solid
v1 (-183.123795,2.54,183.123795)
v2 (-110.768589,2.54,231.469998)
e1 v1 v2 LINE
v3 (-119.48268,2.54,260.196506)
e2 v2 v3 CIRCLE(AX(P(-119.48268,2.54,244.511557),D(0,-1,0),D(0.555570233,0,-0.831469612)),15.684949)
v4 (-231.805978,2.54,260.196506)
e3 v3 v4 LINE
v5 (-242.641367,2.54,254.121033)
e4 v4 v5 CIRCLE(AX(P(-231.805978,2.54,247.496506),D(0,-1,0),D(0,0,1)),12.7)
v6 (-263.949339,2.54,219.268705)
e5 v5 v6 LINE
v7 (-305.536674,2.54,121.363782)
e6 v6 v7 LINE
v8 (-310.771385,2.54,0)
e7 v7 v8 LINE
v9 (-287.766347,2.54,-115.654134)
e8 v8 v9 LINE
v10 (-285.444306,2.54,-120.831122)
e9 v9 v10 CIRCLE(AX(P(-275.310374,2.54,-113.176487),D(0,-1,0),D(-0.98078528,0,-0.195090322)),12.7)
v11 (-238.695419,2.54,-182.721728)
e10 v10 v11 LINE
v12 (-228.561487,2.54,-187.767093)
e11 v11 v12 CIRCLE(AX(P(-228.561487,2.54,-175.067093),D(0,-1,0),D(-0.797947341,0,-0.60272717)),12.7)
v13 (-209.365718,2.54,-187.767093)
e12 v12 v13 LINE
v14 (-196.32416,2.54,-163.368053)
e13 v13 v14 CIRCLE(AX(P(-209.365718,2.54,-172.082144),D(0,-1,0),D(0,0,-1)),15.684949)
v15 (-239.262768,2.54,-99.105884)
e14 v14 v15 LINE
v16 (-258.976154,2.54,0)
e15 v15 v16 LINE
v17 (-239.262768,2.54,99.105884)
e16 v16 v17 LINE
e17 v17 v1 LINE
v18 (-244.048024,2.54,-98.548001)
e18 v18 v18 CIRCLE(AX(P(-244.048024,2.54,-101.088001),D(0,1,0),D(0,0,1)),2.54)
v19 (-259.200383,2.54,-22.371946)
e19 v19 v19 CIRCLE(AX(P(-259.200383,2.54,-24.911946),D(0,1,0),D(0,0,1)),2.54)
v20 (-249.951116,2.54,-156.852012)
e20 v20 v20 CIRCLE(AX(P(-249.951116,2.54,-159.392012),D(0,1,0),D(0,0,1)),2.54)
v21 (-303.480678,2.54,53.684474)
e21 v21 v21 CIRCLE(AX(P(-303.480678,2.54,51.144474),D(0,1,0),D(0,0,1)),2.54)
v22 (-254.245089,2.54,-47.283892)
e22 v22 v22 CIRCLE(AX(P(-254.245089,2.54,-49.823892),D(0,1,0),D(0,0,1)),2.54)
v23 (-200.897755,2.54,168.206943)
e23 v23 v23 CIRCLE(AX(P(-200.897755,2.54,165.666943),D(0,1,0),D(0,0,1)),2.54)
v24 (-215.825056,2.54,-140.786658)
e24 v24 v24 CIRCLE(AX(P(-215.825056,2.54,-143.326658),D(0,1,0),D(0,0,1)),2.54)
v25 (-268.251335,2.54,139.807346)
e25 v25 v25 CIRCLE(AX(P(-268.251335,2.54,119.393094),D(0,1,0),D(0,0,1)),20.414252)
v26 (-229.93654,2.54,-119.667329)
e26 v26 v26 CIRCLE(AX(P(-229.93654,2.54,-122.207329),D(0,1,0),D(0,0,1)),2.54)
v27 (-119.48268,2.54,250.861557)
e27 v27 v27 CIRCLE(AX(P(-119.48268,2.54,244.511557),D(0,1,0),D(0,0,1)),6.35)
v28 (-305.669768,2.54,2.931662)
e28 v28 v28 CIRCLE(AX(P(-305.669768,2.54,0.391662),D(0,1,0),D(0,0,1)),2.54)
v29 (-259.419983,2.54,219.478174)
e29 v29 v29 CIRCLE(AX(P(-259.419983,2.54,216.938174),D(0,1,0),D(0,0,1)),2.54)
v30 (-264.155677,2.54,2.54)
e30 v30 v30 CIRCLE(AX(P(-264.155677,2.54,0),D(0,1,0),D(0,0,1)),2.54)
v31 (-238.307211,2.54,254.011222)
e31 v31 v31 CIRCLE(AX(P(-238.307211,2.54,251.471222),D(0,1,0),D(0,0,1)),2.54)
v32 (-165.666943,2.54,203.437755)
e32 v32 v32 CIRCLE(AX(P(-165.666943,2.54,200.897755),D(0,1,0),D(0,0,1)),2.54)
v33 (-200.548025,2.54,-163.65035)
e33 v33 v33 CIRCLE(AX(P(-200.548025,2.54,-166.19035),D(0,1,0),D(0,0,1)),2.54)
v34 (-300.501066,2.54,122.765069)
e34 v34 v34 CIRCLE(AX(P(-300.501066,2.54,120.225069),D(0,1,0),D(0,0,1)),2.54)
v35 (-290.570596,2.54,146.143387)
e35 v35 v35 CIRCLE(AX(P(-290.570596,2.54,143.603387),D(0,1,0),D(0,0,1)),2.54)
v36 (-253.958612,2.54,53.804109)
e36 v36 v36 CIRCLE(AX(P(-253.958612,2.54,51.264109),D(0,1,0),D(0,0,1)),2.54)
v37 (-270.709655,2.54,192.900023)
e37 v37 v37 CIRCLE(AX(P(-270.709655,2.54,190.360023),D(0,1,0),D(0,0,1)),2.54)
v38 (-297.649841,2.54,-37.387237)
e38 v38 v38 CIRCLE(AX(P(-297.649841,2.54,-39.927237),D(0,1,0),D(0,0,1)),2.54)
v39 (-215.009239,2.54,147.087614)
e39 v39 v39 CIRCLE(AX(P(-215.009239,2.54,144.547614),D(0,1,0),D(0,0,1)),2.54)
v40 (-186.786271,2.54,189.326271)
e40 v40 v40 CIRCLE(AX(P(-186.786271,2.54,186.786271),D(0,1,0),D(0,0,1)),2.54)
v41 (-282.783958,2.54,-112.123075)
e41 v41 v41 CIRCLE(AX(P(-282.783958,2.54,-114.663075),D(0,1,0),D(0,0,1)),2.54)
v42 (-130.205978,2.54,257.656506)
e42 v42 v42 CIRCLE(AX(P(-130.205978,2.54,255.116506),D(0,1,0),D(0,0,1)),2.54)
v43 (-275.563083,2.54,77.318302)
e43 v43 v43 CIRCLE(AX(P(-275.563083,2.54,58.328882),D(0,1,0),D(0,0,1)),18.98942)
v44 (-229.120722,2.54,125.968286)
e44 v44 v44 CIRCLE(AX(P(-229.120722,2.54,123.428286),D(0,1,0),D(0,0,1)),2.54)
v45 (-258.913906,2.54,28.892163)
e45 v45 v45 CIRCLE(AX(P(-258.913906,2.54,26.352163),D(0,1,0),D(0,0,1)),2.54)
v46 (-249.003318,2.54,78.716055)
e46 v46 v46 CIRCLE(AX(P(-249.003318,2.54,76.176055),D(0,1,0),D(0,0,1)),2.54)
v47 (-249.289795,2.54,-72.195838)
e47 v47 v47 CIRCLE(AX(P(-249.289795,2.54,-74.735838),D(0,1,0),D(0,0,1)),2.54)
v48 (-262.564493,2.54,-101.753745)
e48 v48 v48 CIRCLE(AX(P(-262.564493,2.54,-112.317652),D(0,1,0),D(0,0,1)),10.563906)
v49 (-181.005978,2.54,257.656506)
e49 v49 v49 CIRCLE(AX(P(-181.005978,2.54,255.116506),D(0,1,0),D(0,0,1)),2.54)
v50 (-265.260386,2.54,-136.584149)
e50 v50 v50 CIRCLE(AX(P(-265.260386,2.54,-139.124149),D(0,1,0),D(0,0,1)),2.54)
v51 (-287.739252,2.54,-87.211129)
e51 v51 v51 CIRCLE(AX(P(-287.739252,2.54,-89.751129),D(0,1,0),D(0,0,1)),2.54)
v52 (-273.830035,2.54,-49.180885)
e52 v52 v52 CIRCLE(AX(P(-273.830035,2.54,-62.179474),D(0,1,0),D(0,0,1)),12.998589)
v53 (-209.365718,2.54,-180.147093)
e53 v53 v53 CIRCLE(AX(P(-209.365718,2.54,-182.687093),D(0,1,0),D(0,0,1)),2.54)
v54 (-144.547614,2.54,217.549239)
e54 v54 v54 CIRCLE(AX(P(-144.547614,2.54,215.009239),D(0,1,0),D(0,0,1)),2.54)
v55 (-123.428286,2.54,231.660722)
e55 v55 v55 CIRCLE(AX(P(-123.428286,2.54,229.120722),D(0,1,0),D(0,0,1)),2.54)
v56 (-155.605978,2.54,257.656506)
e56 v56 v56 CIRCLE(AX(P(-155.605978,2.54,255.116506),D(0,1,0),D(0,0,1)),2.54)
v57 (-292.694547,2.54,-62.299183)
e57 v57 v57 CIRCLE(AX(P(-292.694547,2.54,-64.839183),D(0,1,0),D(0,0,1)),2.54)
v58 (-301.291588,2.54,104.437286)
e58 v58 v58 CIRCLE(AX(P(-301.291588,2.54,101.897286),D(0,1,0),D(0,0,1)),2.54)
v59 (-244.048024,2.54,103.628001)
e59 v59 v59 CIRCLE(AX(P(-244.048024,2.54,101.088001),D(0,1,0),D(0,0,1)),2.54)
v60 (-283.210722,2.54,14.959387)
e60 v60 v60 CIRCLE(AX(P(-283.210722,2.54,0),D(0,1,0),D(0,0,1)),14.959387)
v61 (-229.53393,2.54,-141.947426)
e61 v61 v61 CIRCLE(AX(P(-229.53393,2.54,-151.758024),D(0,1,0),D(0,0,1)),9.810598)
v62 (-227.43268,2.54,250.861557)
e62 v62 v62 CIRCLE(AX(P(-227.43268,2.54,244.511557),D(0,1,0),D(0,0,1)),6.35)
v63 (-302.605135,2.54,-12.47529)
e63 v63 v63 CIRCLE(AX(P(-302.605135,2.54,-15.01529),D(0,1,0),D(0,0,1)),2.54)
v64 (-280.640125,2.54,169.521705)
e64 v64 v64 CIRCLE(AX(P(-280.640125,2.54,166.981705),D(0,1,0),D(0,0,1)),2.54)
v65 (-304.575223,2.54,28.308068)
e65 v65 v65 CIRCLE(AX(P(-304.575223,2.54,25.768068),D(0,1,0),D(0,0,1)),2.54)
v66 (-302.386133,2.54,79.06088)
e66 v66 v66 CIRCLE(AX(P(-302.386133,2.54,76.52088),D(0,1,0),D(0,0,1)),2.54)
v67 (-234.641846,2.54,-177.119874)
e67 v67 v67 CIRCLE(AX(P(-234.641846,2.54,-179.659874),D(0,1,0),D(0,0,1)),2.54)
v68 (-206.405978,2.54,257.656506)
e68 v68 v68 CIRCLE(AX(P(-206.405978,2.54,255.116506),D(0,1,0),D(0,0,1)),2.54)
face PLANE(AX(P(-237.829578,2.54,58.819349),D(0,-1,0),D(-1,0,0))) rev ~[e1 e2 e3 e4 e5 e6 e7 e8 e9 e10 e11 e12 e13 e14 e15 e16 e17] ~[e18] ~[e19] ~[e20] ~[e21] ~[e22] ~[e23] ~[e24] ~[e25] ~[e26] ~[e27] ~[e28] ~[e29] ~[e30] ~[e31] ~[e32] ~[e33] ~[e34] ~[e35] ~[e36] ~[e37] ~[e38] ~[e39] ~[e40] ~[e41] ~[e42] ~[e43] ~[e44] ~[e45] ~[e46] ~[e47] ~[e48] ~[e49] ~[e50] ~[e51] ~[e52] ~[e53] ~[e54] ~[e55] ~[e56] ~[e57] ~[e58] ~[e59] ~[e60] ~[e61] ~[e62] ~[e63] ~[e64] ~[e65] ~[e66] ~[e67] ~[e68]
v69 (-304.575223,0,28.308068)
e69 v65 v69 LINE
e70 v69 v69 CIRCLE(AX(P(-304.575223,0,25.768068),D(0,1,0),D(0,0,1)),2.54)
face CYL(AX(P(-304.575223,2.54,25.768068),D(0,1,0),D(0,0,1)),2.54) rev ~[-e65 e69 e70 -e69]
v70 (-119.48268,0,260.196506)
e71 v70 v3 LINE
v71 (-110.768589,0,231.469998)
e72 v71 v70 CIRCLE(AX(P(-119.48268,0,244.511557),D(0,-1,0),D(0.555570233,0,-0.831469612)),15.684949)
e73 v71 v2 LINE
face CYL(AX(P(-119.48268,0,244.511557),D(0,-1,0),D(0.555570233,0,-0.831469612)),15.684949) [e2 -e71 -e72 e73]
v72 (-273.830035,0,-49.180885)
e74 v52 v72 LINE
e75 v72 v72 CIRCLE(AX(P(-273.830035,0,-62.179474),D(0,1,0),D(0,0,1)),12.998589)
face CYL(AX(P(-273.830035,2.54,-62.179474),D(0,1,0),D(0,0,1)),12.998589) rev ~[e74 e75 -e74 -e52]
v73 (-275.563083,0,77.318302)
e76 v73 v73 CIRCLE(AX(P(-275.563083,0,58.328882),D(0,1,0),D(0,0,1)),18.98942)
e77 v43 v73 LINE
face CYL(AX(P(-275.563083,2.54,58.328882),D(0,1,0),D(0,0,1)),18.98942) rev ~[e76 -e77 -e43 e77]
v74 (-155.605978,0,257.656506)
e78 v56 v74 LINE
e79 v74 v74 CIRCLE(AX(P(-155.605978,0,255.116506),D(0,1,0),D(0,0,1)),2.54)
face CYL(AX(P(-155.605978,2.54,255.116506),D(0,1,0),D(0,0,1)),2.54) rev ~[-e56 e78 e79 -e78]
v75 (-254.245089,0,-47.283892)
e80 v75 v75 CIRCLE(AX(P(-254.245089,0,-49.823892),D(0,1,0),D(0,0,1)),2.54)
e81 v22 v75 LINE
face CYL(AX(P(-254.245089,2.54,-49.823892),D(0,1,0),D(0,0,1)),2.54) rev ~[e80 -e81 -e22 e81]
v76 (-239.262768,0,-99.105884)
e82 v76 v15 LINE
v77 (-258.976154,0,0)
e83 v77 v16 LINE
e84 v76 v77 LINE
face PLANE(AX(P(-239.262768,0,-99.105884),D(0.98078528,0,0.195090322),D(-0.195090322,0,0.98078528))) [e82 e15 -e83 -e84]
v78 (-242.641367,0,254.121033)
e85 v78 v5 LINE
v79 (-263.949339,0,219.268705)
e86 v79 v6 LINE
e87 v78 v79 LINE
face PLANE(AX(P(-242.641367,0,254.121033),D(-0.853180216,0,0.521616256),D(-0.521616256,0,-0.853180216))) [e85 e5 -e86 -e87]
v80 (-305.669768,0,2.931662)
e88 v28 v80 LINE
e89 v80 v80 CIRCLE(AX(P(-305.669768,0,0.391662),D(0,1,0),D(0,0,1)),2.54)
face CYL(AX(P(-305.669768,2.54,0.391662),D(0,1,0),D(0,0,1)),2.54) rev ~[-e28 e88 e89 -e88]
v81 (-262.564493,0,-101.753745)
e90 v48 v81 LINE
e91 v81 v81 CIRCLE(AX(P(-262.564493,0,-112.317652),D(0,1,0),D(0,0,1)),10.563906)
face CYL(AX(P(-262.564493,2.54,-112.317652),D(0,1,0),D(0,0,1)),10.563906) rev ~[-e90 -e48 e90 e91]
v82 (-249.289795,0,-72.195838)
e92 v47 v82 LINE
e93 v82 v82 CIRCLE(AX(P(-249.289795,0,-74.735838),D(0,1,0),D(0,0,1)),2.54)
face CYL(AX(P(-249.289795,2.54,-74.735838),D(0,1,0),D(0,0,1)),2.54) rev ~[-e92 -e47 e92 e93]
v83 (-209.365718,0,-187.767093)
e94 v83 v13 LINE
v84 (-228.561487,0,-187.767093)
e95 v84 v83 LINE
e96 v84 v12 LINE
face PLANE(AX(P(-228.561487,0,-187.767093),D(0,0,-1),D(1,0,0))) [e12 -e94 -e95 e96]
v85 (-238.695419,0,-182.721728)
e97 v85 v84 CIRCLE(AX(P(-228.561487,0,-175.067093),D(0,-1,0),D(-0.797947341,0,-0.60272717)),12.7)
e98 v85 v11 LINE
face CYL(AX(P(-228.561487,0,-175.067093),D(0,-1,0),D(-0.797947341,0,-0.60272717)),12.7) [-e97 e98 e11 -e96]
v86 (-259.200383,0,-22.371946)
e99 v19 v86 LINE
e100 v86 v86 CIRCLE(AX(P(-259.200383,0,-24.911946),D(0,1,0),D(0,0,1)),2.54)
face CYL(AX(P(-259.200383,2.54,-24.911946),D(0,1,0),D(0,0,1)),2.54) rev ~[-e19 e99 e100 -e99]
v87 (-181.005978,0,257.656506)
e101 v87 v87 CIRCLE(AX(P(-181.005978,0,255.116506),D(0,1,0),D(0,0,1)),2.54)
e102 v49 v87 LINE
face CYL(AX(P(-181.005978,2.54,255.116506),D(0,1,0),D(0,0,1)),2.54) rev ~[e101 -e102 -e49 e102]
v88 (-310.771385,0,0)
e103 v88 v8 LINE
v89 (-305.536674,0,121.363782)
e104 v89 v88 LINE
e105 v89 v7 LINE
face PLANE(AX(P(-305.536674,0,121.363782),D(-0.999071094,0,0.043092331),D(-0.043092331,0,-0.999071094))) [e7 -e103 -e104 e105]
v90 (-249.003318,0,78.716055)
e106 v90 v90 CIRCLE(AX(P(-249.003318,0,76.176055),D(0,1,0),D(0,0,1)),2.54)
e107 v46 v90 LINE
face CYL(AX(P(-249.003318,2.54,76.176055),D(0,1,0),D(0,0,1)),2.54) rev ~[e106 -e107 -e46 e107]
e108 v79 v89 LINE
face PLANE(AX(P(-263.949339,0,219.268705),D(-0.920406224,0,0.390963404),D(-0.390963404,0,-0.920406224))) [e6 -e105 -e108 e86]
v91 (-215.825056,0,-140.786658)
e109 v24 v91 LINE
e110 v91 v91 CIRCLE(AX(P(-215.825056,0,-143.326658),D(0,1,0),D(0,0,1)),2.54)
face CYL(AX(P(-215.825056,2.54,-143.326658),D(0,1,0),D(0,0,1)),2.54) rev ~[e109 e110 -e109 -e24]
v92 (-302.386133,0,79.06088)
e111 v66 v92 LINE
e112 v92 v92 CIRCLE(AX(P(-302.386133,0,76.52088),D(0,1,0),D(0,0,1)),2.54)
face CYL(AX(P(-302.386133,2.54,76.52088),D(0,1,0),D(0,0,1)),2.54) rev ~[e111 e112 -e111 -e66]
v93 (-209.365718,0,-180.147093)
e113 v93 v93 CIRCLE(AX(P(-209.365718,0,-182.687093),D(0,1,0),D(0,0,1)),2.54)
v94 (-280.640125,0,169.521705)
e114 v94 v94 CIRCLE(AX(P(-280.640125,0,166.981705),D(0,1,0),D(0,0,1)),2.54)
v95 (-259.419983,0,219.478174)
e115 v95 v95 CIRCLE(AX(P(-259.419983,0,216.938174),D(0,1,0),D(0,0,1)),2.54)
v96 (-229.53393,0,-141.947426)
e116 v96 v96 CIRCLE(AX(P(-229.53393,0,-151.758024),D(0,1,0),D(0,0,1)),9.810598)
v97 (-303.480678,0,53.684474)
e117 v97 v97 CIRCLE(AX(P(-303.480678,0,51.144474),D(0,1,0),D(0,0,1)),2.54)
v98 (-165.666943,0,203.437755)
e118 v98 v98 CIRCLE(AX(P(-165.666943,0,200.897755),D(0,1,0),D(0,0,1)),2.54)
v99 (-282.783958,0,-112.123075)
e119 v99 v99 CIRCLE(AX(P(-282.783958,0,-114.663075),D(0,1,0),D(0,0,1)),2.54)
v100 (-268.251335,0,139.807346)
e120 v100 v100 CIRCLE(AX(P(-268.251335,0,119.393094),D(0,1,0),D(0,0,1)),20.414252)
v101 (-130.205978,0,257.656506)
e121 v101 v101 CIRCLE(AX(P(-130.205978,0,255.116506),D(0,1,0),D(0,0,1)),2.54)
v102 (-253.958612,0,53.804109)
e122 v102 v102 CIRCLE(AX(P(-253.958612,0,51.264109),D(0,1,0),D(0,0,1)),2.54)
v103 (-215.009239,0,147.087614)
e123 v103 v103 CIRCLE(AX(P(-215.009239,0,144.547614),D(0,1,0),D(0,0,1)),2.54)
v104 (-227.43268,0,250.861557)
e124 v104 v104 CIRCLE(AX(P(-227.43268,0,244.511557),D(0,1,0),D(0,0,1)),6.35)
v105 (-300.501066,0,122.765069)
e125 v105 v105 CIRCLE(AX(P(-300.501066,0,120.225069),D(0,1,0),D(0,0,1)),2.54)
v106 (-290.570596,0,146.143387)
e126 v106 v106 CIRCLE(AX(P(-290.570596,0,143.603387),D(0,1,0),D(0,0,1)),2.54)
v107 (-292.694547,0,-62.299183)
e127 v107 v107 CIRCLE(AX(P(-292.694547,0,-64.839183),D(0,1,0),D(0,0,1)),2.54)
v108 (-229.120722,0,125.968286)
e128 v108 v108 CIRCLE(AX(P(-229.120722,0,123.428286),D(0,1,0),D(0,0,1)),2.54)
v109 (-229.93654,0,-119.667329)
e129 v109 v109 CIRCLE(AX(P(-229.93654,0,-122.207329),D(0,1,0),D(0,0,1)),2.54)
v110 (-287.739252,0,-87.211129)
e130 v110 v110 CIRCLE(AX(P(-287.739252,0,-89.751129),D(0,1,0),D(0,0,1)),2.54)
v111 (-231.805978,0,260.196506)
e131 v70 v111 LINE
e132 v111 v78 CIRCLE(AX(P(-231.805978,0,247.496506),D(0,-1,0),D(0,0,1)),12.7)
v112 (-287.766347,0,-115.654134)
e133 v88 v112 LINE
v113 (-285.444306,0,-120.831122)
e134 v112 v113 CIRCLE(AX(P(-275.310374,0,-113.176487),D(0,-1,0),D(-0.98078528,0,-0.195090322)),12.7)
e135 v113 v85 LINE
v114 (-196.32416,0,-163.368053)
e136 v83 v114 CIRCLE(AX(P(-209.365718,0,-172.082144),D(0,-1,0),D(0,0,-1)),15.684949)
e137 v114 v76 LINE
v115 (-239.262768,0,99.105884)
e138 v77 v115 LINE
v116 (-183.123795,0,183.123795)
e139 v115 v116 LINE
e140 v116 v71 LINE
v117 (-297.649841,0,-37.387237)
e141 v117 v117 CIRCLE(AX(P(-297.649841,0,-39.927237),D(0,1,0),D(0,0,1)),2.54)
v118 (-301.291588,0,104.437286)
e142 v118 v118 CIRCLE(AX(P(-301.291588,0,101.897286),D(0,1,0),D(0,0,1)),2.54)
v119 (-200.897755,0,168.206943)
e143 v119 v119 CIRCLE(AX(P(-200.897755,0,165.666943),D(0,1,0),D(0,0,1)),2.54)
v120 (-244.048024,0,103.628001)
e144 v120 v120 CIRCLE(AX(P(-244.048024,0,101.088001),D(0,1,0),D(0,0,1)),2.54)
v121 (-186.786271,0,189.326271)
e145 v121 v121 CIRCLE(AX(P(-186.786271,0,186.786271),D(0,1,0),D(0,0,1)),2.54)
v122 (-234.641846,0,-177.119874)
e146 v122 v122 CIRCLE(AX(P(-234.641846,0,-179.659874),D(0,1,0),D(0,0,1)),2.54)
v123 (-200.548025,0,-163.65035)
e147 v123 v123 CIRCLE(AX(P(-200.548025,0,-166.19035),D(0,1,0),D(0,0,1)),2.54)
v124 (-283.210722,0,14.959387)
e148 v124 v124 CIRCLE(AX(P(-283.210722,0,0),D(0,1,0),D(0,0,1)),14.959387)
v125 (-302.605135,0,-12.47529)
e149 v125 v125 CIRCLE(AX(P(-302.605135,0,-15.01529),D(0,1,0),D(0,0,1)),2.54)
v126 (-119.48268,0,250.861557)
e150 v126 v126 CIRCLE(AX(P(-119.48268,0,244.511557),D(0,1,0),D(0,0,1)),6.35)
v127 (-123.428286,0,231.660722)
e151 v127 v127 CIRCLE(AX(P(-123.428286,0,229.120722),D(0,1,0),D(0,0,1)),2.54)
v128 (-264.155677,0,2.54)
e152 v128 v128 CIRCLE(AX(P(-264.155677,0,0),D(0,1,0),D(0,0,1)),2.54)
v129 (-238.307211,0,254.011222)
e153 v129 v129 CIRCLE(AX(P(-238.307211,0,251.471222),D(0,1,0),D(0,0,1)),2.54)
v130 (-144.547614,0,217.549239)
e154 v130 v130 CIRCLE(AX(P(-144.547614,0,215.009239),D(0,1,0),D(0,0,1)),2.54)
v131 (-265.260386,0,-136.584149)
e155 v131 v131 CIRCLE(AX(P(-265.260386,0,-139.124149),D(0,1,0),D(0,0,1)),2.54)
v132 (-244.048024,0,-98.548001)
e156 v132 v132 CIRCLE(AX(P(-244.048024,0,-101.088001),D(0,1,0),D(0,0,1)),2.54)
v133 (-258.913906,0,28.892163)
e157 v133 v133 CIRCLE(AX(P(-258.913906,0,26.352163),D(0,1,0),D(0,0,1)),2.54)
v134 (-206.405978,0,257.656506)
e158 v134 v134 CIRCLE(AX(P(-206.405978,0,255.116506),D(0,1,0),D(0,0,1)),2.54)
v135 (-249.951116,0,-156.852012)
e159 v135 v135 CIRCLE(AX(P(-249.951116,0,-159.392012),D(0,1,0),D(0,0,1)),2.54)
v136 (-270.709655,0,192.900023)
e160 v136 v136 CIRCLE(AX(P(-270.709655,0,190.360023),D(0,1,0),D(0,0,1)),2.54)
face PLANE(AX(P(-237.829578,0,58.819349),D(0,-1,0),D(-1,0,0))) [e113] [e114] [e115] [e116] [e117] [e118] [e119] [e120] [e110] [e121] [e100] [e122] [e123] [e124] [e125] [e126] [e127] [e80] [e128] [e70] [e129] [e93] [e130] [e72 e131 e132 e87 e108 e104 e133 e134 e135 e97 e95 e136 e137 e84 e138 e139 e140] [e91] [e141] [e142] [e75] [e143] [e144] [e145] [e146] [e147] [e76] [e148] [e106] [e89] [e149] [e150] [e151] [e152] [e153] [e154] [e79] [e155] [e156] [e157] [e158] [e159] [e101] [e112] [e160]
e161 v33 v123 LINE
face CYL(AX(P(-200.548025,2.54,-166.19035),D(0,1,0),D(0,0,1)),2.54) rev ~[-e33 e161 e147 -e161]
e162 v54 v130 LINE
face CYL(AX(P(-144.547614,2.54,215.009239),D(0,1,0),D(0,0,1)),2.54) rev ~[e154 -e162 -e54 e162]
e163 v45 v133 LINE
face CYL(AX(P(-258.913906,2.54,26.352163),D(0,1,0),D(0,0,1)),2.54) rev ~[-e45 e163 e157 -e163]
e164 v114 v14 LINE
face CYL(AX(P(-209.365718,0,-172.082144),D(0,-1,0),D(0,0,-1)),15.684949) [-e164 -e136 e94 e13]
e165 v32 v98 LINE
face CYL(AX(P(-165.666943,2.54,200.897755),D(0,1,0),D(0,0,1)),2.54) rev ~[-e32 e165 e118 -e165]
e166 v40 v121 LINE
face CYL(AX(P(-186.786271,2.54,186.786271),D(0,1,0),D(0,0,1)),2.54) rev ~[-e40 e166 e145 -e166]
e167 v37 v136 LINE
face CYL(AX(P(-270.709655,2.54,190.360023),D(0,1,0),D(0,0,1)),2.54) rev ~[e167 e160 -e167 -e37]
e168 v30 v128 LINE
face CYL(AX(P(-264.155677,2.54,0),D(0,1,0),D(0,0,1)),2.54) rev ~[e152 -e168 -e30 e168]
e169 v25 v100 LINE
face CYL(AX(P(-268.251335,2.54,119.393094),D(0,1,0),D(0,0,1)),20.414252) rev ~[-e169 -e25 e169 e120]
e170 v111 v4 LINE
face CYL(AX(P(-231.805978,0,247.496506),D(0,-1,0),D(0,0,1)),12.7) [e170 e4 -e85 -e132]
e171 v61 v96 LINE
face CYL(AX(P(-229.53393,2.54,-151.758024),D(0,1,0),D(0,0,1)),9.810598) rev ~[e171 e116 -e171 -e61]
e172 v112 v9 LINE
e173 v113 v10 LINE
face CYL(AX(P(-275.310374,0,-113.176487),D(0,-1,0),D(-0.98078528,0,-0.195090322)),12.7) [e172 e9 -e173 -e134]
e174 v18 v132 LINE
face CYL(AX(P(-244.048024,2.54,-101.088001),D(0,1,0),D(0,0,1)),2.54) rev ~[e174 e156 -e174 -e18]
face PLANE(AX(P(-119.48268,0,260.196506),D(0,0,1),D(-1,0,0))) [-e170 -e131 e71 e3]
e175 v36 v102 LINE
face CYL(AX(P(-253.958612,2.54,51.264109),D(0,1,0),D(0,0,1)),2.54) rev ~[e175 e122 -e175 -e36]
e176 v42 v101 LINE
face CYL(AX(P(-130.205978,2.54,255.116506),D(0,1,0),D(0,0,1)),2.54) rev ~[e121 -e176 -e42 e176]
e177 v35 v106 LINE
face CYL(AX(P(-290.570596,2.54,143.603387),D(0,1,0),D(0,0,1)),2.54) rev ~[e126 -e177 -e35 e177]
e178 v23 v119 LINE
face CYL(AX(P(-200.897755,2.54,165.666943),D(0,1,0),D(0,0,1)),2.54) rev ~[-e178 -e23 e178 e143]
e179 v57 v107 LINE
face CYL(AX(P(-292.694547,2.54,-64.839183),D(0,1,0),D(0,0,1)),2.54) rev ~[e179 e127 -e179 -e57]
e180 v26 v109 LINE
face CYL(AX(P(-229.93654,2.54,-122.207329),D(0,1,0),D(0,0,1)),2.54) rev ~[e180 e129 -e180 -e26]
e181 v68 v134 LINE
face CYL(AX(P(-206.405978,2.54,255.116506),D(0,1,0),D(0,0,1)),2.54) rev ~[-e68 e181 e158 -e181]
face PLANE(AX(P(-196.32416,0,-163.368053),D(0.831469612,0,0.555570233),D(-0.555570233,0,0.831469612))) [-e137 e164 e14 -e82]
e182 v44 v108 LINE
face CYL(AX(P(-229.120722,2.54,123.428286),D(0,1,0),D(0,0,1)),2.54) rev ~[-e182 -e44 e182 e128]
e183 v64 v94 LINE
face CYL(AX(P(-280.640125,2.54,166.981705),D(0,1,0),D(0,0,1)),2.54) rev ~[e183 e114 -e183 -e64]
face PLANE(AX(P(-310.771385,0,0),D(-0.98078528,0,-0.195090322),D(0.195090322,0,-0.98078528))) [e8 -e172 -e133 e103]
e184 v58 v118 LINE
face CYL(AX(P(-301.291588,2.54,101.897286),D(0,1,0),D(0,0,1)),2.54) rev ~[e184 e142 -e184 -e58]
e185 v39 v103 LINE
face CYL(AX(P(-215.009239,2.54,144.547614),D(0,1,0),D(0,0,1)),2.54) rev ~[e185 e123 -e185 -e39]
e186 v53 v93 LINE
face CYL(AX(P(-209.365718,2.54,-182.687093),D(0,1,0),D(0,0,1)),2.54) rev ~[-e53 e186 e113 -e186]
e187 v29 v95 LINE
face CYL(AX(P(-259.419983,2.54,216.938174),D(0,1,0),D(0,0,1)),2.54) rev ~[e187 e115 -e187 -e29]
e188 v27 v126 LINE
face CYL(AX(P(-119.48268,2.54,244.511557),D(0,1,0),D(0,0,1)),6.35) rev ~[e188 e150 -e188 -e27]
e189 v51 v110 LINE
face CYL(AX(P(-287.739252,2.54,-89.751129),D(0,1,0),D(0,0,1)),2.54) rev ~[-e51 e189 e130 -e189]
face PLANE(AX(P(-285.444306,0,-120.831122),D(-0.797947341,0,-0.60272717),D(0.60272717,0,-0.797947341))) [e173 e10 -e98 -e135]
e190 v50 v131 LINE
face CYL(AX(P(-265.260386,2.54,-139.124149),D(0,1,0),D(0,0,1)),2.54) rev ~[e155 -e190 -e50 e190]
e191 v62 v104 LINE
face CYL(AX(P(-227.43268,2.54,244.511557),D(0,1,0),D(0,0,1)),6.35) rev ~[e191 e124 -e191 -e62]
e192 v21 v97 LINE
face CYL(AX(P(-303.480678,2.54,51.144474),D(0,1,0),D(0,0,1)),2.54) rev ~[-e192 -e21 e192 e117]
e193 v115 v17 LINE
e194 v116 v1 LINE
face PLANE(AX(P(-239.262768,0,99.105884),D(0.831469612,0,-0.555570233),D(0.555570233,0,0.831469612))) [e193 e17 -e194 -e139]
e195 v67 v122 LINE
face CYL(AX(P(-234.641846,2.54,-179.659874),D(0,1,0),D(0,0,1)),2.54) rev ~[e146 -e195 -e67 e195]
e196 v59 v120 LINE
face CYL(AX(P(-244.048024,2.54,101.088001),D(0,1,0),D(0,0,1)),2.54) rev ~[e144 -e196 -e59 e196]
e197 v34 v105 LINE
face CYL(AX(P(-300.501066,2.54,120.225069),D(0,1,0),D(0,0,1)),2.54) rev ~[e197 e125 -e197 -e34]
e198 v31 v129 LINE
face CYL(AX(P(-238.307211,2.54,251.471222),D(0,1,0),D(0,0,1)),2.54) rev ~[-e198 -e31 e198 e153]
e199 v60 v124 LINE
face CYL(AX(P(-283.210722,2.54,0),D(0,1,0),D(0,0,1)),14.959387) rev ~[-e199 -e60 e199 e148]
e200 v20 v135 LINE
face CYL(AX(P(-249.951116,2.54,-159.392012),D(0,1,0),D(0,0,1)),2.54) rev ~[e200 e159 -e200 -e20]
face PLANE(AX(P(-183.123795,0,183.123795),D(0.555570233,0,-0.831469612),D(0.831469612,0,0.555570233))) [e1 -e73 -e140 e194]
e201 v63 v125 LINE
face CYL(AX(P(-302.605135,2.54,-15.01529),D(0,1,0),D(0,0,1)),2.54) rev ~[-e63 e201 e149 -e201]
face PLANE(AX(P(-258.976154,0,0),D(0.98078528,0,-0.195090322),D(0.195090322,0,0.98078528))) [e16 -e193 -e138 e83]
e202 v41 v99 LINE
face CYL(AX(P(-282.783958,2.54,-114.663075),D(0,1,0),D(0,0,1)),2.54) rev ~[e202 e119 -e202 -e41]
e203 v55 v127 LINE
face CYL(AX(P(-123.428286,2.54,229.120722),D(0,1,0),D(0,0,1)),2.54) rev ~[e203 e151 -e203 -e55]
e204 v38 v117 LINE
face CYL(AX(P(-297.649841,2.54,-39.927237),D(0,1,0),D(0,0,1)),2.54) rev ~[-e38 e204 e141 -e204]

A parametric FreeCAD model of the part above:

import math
import FreeCAD as App
import Part
import Sketcher
Q = App.Units.Quantity

doc = App.newDocument("Part")
body = doc.addObject("PartDesign::Body", "Body")

sketch1 = body.newObject("Sketcher::SketchObject", "Sketch")
sketch1.AttachmentSupport = (doc.getObject("XZ_Plane"), [""])
sketch1.MapMode = "FlatFace"
sketch1.addGeometry(Part.LineSegment(App.Vector(-239, -99, 0), App.Vector(-196, -163, 0)), False)
sketch1.addGeometry(Part.ArcOfCircle(Part.Circle(App.Vector(-209, -172, 0), App.Vector(0, 0, 1), 16), math.radians(-90), math.radians(34)), False)
sketch1.addGeometry(Part.LineSegment(App.Vector(-209, -188, 0), App.Vector(-229, -188, 0)), False)
sketch1.addGeometry(Part.ArcOfCircle(Part.Circle(App.Vector(-229, -175, 0), App.Vector(0, 0, 1), 13), math.radians(-143), math.radians(-90)), False)
sketch1.addGeometry(Part.LineSegment(App.Vector(-239, -183, 0), App.Vector(-285, -121, 0)), False)
sketch1.addGeometry(Part.ArcOfCircle(Part.Circle(App.Vector(-275, -113, 0), App.Vector(0, 0, 1), 13), math.radians(-169), math.radians(-143)), False)
sketch1.addGeometry(Part.LineSegment(App.Vector(-288, -116, 0), App.Vector(-311, 0, 0)), False)
sketch1.addGeometry(Part.LineSegment(App.Vector(-311, 0, 0), App.Vector(-306, 121, 0)), False)
sketch1.addGeometry(Part.LineSegment(App.Vector(-306, 121, 0), App.Vector(-264, 219, 0)), False)
sketch1.addGeometry(Part.LineSegment(App.Vector(-264, 219, 0), App.Vector(-243, 254, 0)), False)
sketch1.addGeometry(Part.ArcOfCircle(Part.Circle(App.Vector(-232, 247, 0), App.Vector(0, 0, 1), 13), math.radians(90), math.radians(149)), False)
sketch1.addGeometry(Part.LineSegment(App.Vector(-232, 260, 0), App.Vector(-119, 260, 0)), False)
sketch1.addGeometry(Part.ArcOfCircle(Part.Circle(App.Vector(-119, 245, 0), App.Vector(0, 0, 1), 16), math.radians(-56), math.radians(90)), False)
sketch1.addGeometry(Part.LineSegment(App.Vector(-111, 231, 0), App.Vector(-183, 183, 0)), False)
sketch1.addGeometry(Part.LineSegment(App.Vector(-183, 183, 0), App.Vector(-239, 99, 0)), False)
sketch1.addGeometry(Part.LineSegment(App.Vector(-239, 99, 0), App.Vector(-259, 0, 0)), False)
sketch1.addGeometry(Part.LineSegment(App.Vector(-259, 0, 0), App.Vector(-239, -99, 0)), False)
sketch1.addConstraint(Sketcher.Constraint("Tangent", 0, 2, 1, 2))
sketch1.addConstraint(Sketcher.Constraint("Tangent", 1, 1, 2, 1))
sketch1.addConstraint(Sketcher.Constraint("Tangent", 2, 2, 3, 2))
sketch1.addConstraint(Sketcher.Constraint("Tangent", 3, 1, 4, 1))
sketch1.addConstraint(Sketcher.Constraint("Tangent", 4, 2, 5, 2))
sketch1.addConstraint(Sketcher.Constraint("Tangent", 5, 1, 6, 1))
sketch1.addConstraint(Sketcher.Constraint("Coincident", 6, 2, 7, 1))
sketch1.addConstraint(Sketcher.Constraint("Coincident", 7, 2, 8, 1))
sketch1.addConstraint(Sketcher.Constraint("Coincident", 8, 2, 9, 1))
sketch1.addConstraint(Sketcher.Constraint("Tangent", 9, 2, 10, 2))
sketch1.addConstraint(Sketcher.Constraint("Tangent", 10, 1, 11, 1))
sketch1.addConstraint(Sketcher.Constraint("Tangent", 11, 2, 12, 2))
sketch1.addConstraint(Sketcher.Constraint("Tangent", 12, 1, 13, 1))
sketch1.addConstraint(Sketcher.Constraint("Coincident", 13, 2, 14, 1))
sketch1.addConstraint(Sketcher.Constraint("Coincident", 14, 2, 15, 1))
sketch1.addConstraint(Sketcher.Constraint("Coincident", 15, 2, 16, 1))
sketch1.addConstraint(Sketcher.Constraint("Coincident", 16, 2, 0, 1))
sketch1.addConstraint(Sketcher.Constraint("Horizontal", 2))
sketch1.addConstraint(Sketcher.Constraint("Horizontal", 11))
sketch1.addConstraint(Sketcher.Constraint("Equal", 3, 5))
sketch1.addConstraint(Sketcher.Constraint("Equal", 5, 10))
sketch1.addConstraint(Sketcher.Constraint("Equal", 1, 12))
sketch1.addConstraint(Sketcher.Constraint("Symmetric", 14, 2, 16, 2, -1))
sketch1.addConstraint(Sketcher.Constraint("PointOnObject", 6, 2, -1))
sketch1.addConstraint(Sketcher.Constraint("PointOnObject", 15, 2, -1))
sketch1.addConstraint(Sketcher.Constraint("Perpendicular", 0, 13))
sketch1.addConstraint(Sketcher.Constraint("Parallel", 6, 16))
sketch1.addConstraint(Sketcher.Constraint("Equal", 14, 15))
sketch1.addConstraint(Sketcher.Constraint("Radius", 3, Q("0.5 in")))
sketch1.addConstraint(Sketcher.Constraint("Angle", 0, Q("-56.25 deg")))
sketch1.addConstraint(Sketcher.Constraint("Angle", 6, Q("101.25 deg")))
sketch1.addConstraint(Sketcher.Constraint("Angle", 14, Q("-123.75 deg")))
sketch1.addConstraint(Sketcher.Constraint("Radius", 1, Q("15.684949 mm")))
sketch1.addConstraint(Sketcher.Constraint("DistanceX", 11, 1, 11, 2, Q("112.323298 mm")))
sketch1.addConstraint(Sketcher.Constraint("DistanceX", 5, 1, 3, 3, Q("2.3309 in")))
sketch1.addConstraint(Sketcher.Constraint("DistanceX", 6, 2, 14, 2, Q("2.8152999 in")))
sketch1.addConstraint(Sketcher.Constraint("Distance", 9, Q("40.849902 mm")))
sketch1.addConstraint(Sketcher.Constraint("DistanceX", 2, 2, 2, 1, Q("19.195769 mm")))
sketch1.addConstraint(Sketcher.Constraint("DistanceY", 3, 3, 10, 3, Q("422.5636 mm")))
sketch1.addConstraint(Sketcher.Constraint("DistanceX", 3, 1, 1, 3, Q("29.3297 mm")))
sketch1.addConstraint(Sketcher.Constraint("DistanceX", 7, 2, 5, 3, Q("30.2263 mm")))
sketch1.addConstraint(Sketcher.Constraint("DistanceY", 8, 2, 10, 3, Q("28.227802 mm")))
sketch1.addConstraint(Sketcher.Constraint("DistanceY", 14, 2, 7, 2, Q("22.257898 mm")))
sketch1.addConstraint(Sketcher.Constraint("DistanceX", 1, 3, -1, 1, Q("209.365718 mm")))
sketch1.addConstraint(Sketcher.Constraint("DistanceX", 12, 3, -1, 1, Q("119.48268 mm")))
pad1 = body.newObject("PartDesign::Pad", "Pad")
pad1.Profile = sketch1
pad1.Length = Q("0.1 in")
pad1.Reversed = True

sketch2 = body.newObject("Sketcher::SketchObject", "Sketch001")
sketch2.AttachmentSupport = (doc.getObject("XZ_Plane"), [""])
sketch2.MapMode = "FlatFace"
sketch2.AttachmentOffset = App.Placement(App.Vector(0, 0, -0.1 * 25.4), App.Rotation())
sketch2.addGeometry(Part.Circle(App.Vector(-263, -112, 0), App.Vector(0, 0, 1), 11), False)
sketch2.addConstraint(Sketcher.Constraint("Diameter", 0, Q("21.127813 mm")))
sketch2.addConstraint(Sketcher.Constraint("DistanceY", 0, 3, -1, 1, Q("112.317652 mm")))
sketch2.addConstraint(Sketcher.Constraint("DistanceX", 0, 3, -1, 1, Q("262.564493 mm")))
pocket1 = body.newObject("PartDesign::Pocket", "Pocket")
pocket1.Profile = sketch2
pocket1.Type = "UpToFirst"
pocket1.Reversed = True

sketch3 = body.newObject("Sketcher::SketchObject", "Sketch002")
sketch3.AttachmentSupport = (doc.getObject("XZ_Plane"), [""])
sketch3.MapMode = "FlatFace"
sketch3.AttachmentOffset = App.Placement(App.Vector(0, 0, -0.1 * 25.4), App.Rotation())
sketch3.addGeometry(Part.Circle(App.Vector(-274, -62, 0), App.Vector(0, 0, 1), 13), False)
sketch3.addConstraint(Sketcher.Constraint("Diameter", 0, Q("25.997179 mm")))
sketch3.addConstraint(Sketcher.Constraint("DistanceX", 0, 3, -1, 1, Q("273.830035 mm")))
sketch3.addConstraint(Sketcher.Constraint("DistanceY", 0, 3, -1, 1, Q("62.179474 mm")))
pocket2 = body.newObject("PartDesign::Pocket", "Pocket001")
pocket2.Profile = sketch3
pocket2.Type = "UpToFirst"
pocket2.Reversed = True

sketch4 = body.newObject("Sketcher::SketchObject", "Sketch003")
sketch4.AttachmentSupport = (doc.getObject("XZ_Plane"), [""])
sketch4.MapMode = "FlatFace"
sketch4.AttachmentOffset = App.Placement(App.Vector(0, 0, -0.1 * 25.4), App.Rotation())
sketch4.addGeometry(Part.Circle(App.Vector(-283, 0, 0), App.Vector(0, 0, 1), 15), False)
sketch4.addConstraint(Sketcher.Constraint("PointOnObject", 0, 3, -1))
sketch4.addConstraint(Sketcher.Constraint("Diameter", 0, Q("29.918773 mm")))
sketch4.addConstraint(Sketcher.Constraint("DistanceX", 0, 3, -1, 1, Q("283.210722 mm")))
pocket3 = body.newObject("PartDesign::Pocket", "Pocket002")
pocket3.Profile = sketch4
pocket3.Type = "UpToFirst"
pocket3.Reversed = True

sketch5 = body.newObject("Sketcher::SketchObject", "Sketch004")
sketch5.AttachmentSupport = (doc.getObject("XZ_Plane"), [""])
sketch5.MapMode = "FlatFace"
sketch5.AttachmentOffset = App.Placement(App.Vector(0, 0, -0.1 * 25.4), App.Rotation())
sketch5.addGeometry(Part.Circle(App.Vector(-276, 58, 0), App.Vector(0, 0, 1), 19), False)
sketch5.addConstraint(Sketcher.Constraint("Diameter", 0, Q("37.978841 mm")))
sketch5.addConstraint(Sketcher.Constraint("DistanceY", -1, 1, 0, 3, Q("58.328882 mm")))
sketch5.addConstraint(Sketcher.Constraint("DistanceX", 0, 3, -1, 1, Q("275.563083 mm")))
pocket4 = body.newObject("PartDesign::Pocket", "Pocket003")
pocket4.Profile = sketch5
pocket4.Type = "UpToFirst"
pocket4.Reversed = True

sketch6 = body.newObject("Sketcher::SketchObject", "Sketch005")
sketch6.AttachmentSupport = (doc.getObject("XZ_Plane"), [""])
sketch6.MapMode = "FlatFace"
sketch6.AttachmentOffset = App.Placement(App.Vector(0, 0, -0.1 * 25.4), App.Rotation())
sketch6.addGeometry(Part.Circle(App.Vector(-268, 119, 0), App.Vector(0, 0, 1), 20), False)
sketch6.addConstraint(Sketcher.Constraint("Diameter", 0, Q("40.828504 mm")))
sketch6.addConstraint(Sketcher.Constraint("DistanceX", 0, 3, -1, 1, Q("268.251335 mm")))
sketch6.addConstraint(Sketcher.Constraint("DistanceY", -1, 1, 0, 3, Q("119.393094 mm")))
pocket5 = body.newObject("PartDesign::Pocket", "Pocket004")
pocket5.Profile = sketch6
pocket5.Type = "UpToFirst"
pocket5.Reversed = True

sketch7 = body.newObject("Sketcher::SketchObject", "Sketch006")
sketch7.AttachmentSupport = (doc.getObject("XZ_Plane"), [""])
sketch7.MapMode = "FlatFace"
sketch7.AttachmentOffset = App.Placement(App.Vector(0, 0, -0.1 * 25.4), App.Rotation())
sketch7.addGeometry(Part.Circle(App.Vector(-230, -152, 0), App.Vector(0, 0, 1), 10), False)
sketch7.addConstraint(Sketcher.Constraint("Diameter", 0, Q("19.621196 mm")))
sketch7.addConstraint(Sketcher.Constraint("DistanceX", 0, 3, -1, 1, Q("229.53393 mm")))
sketch7.addConstraint(Sketcher.Constraint("DistanceY", 0, 3, -1, 1, Q("151.758024 mm")))
pocket6 = body.newObject("PartDesign::Pocket", "Pocket005")
pocket6.Profile = sketch7
pocket6.Type = "UpToFirst"
pocket6.Reversed = True

sketch8 = body.newObject("Sketcher::SketchObject", "Sketch007")
sketch8.AttachmentSupport = (doc.getObject("XZ_Plane"), [""])
sketch8.MapMode = "FlatFace"
sketch8.AttachmentOffset = App.Placement(App.Vector(0, 0, -0.1 * 25.4), App.Rotation())
sketch8.addGeometry(Part.Circle(App.Vector(-119, 245, 0), App.Vector(0, 0, 1), 6), False)
sketch8.addConstraint(Sketcher.Constraint("Diameter", 0, Q("0.5 in")))
sketch8.addConstraint(Sketcher.Constraint("DistanceX", 0, 3, -1, 1, Q("119.48268 mm")))
sketch8.addConstraint(Sketcher.Constraint("DistanceY", -1, 1, 0, 3, Q("244.511557 mm")))
pocket7 = body.newObject("PartDesign::Pocket", "Pocket006")
pocket7.Profile = sketch8
pocket7.Type = "UpToFirst"
pocket7.Reversed = True

sketch9 = body.newObject("Sketcher::SketchObject", "Sketch008")
sketch9.AttachmentSupport = (doc.getObject("XZ_Plane"), [""])
sketch9.MapMode = "FlatFace"
sketch9.AttachmentOffset = App.Placement(App.Vector(0, 0, -0.1 * 25.4), App.Rotation())
sketch9.addGeometry(Part.Circle(App.Vector(-227, 245, 0), App.Vector(0, 0, 1), 6), False)
sketch9.addConstraint(Sketcher.Constraint("Diameter", 0, Q("0.5 in")))
sketch9.addConstraint(Sketcher.Constraint("DistanceX", 0, 3, -1, 1, Q("227.43268 mm")))
sketch9.addConstraint(Sketcher.Constraint("DistanceY", -1, 1, 0, 3, Q("244.511557 mm")))
pocket8 = body.newObject("PartDesign::Pocket", "Pocket007")
pocket8.Profile = sketch9
pocket8.Type = "UpToFirst"
pocket8.Reversed = True

sketch10 = body.newObject("Sketcher::SketchObject", "Sketch009")
sketch10.AttachmentSupport = (doc.getObject("XZ_Plane"), [""])
sketch10.MapMode = "FlatFace"
sketch10.AttachmentOffset = App.Placement(App.Vector(0, 0, -0.1 * 25.4), App.Rotation())
sketch10.addGeometry(Part.Circle(App.Vector(-186.8, 186.8, 0), App.Vector(0, 0, 1), 2.5), False)
sketch10.addGeometry(Part.Circle(App.Vector(-200.9, 165.7, 0), App.Vector(0, 0, 1), 2.5), False)
sketch10.addGeometry(Part.Circle(App.Vector(-215, 144.5, 0), App.Vector(0, 0, 1), 2.5), False)
sketch10.addGeometry(Part.Circle(App.Vector(-229.1, 123.4, 0), App.Vector(0, 0, 1), 2.5), False)
sketch10.addGeometry(Part.Circle(App.Vector(-244, 101.1, 0), App.Vector(0, 0, 1), 2.5), False)
sketch10.addGeometry(Part.Circle(App.Vector(-249, 76.2, 0), App.Vector(0, 0, 1), 2.5), False)
sketch10.addGeometry(Part.Circle(App.Vector(-254, 51.3, 0), App.Vector(0, 0, 1), 2.5), False)
sketch10.addGeometry(Part.Circle(App.Vector(-258.9, 26.4, 0), App.Vector(0, 0, 1), 2.5), False)
sketch10.addGeometry(Part.Circle(App.Vector(-264.2, 0, 0), App.Vector(0, 0, 1), 2.5), False)
sketch10.addGeometry(Part.Circle(App.Vector(-259.2, -24.9, 0), App.Vector(0, 0, 1), 2.5), False)
sketch10.addGeometry(Part.Circle(App.Vector(-254.2, -49.8, 0), App.Vector(0, 0, 1), 2.5), False)
sketch10.addGeometry(Part.Circle(App.Vector(-249.3, -74.7, 0), App.Vector(0, 0, 1), 2.5), False)
sketch10.addGeometry(Part.Circle(App.Vector(-244, -101.1, 0), App.Vector(0, 0, 1), 2.5), False)
sketch10.addGeometry(Part.Circle(App.Vector(-229.9, -122.2, 0), App.Vector(0, 0, 1), 2.5), False)
sketch10.addGeometry(Part.Circle(App.Vector(-215.8, -143.3, 0), App.Vector(0, 0, 1), 2.5), False)
sketch10.addGeometry(Part.Circle(App.Vector(-200.5, -166.2, 0), App.Vector(0, 0, 1), 2.5), False)
sketch10.addGeometry(Part.Circle(App.Vector(-209.4, -182.7, 0), App.Vector(0, 0, 1), 2.5), False)
sketch10.addGeometry(Part.Circle(App.Vector(-250, -159.4, 0), App.Vector(0, 0, 1), 2.5), False)
sketch10.addGeometry(Part.Circle(App.Vector(-234.6, -179.7, 0), App.Vector(0, 0, 1), 2.5), False)
sketch10.addGeometry(Part.Circle(App.Vector(-265.3, -139.1, 0), App.Vector(0, 0, 1), 2.5), False)
sketch10.addGeometry(Part.Circle(App.Vector(-282.8, -114.7, 0), App.Vector(0, 0, 1), 2.5), False)
sketch10.addGeometry(Part.Circle(App.Vector(-287.7, -89.8, 0), App.Vector(0, 0, 1), 2.5), False)
sketch10.addGeometry(Part.Circle(App.Vector(-292.7, -64.8, 0), App.Vector(0, 0, 1), 2.5), False)
sketch10.addGeometry(Part.Circle(App.Vector(-297.6, -39.9, 0), App.Vector(0, 0, 1), 2.5), False)
sketch10.addGeometry(Part.Circle(App.Vector(-302.6, -15, 0), App.Vector(0, 0, 1), 2.5), False)
sketch10.addGeometry(Part.Circle(App.Vector(-305.7, 0.4, 0), App.Vector(0, 0, 1), 2.5), False)
sketch10.addGeometry(Part.Circle(App.Vector(-304.6, 25.8, 0), App.Vector(0, 0, 1), 2.5), False)
sketch10.addGeometry(Part.Circle(App.Vector(-303.5, 51.1, 0), App.Vector(0, 0, 1), 2.5), False)
sketch10.addGeometry(Part.Circle(App.Vector(-302.4, 76.5, 0), App.Vector(0, 0, 1), 2.5), False)
sketch10.addGeometry(Part.Circle(App.Vector(-301.3, 101.9, 0), App.Vector(0, 0, 1), 2.5), False)
sketch10.addGeometry(Part.Circle(App.Vector(-300.5, 120.2, 0), App.Vector(0, 0, 1), 2.5), False)
sketch10.addGeometry(Part.Circle(App.Vector(-290.6, 143.6, 0), App.Vector(0, 0, 1), 2.5), False)
sketch10.addGeometry(Part.Circle(App.Vector(-280.6, 167, 0), App.Vector(0, 0, 1), 2.5), False)
sketch10.addGeometry(Part.Circle(App.Vector(-270.7, 190.4, 0), App.Vector(0, 0, 1), 2.5), False)
sketch10.addGeometry(Part.Circle(App.Vector(-259.4, 216.9, 0), App.Vector(0, 0, 1), 2.5), False)
sketch10.addGeometry(Part.Circle(App.Vector(-238.3, 251.5, 0), App.Vector(0, 0, 1), 2.5), False)
sketch10.addGeometry(Part.Circle(App.Vector(-206.4, 255.1, 0), App.Vector(0, 0, 1), 2.5), False)
sketch10.addGeometry(Part.Circle(App.Vector(-181, 255.1, 0), App.Vector(0, 0, 1), 2.5), False)
sketch10.addGeometry(Part.Circle(App.Vector(-155.6, 255.1, 0), App.Vector(0, 0, 1), 2.5), False)
sketch10.addGeometry(Part.Circle(App.Vector(-130.2, 255.1, 0), App.Vector(0, 0, 1), 2.5), False)
sketch10.addGeometry(Part.Circle(App.Vector(-165.7, 200.9, 0), App.Vector(0, 0, 1), 2.5), False)
sketch10.addGeometry(Part.Circle(App.Vector(-144.5, 215, 0), App.Vector(0, 0, 1), 2.5), False)
sketch10.addGeometry(Part.Circle(App.Vector(-123.4, 229.1, 0), App.Vector(0, 0, 1), 2.5), False)
sketch10.addConstraint(Sketcher.Constraint("Equal", 0, 1))
sketch10.addConstraint(Sketcher.Constraint("Equal", 1, 2))
sketch10.addConstraint(Sketcher.Constraint("Equal", 2, 3))
sketch10.addConstraint(Sketcher.Constraint("Equal", 3, 4))
sketch10.addConstraint(Sketcher.Constraint("Equal", 4, 5))
sketch10.addConstraint(Sketcher.Constraint("Equal", 5, 6))
sketch10.addConstraint(Sketcher.Constraint("Equal", 6, 7))
sketch10.addConstraint(Sketcher.Constraint("Equal", 7, 8))
sketch10.addConstraint(Sketcher.Constraint("Equal", 8, 9))
sketch10.addConstraint(Sketcher.Constraint("Equal", 9, 10))
sketch10.addConstraint(Sketcher.Constraint("Equal", 10, 11))
sketch10.addConstraint(Sketcher.Constraint("Equal", 11, 12))
sketch10.addConstraint(Sketcher.Constraint("Equal", 12, 13))
sketch10.addConstraint(Sketcher.Constraint("Equal", 13, 14))
sketch10.addConstraint(Sketcher.Constraint("Equal", 14, 15))
sketch10.addConstraint(Sketcher.Constraint("Equal", 15, 16))
sketch10.addConstraint(Sketcher.Constraint("Equal", 16, 17))
sketch10.addConstraint(Sketcher.Constraint("Equal", 17, 18))
sketch10.addConstraint(Sketcher.Constraint("Equal", 18, 19))
sketch10.addConstraint(Sketcher.Constraint("Equal", 19, 20))
sketch10.addConstraint(Sketcher.Constraint("Equal", 20, 21))
sketch10.addConstraint(Sketcher.Constraint("Equal", 21, 22))
sketch10.addConstraint(Sketcher.Constraint("Equal", 22, 23))
sketch10.addConstraint(Sketcher.Constraint("Equal", 23, 24))
sketch10.addConstraint(Sketcher.Constraint("Equal", 24, 25))
sketch10.addConstraint(Sketcher.Constraint("Equal", 25, 26))
sketch10.addConstraint(Sketcher.Constraint("Equal", 26, 27))
sketch10.addConstraint(Sketcher.Constraint("Equal", 27, 28))
sketch10.addConstraint(Sketcher.Constraint("Equal", 28, 29))
sketch10.addConstraint(Sketcher.Constraint("Equal", 29, 30))
sketch10.addConstraint(Sketcher.Constraint("Equal", 30, 31))
sketch10.addConstraint(Sketcher.Constraint("Equal", 31, 32))
sketch10.addConstraint(Sketcher.Constraint("Equal", 32, 33))
sketch10.addConstraint(Sketcher.Constraint("Equal", 33, 34))
sketch10.addConstraint(Sketcher.Constraint("Equal", 34, 35))
sketch10.addConstraint(Sketcher.Constraint("Equal", 35, 36))
sketch10.addConstraint(Sketcher.Constraint("Equal", 36, 37))
sketch10.addConstraint(Sketcher.Constraint("Equal", 37, 38))
sketch10.addConstraint(Sketcher.Constraint("Equal", 38, 39))
sketch10.addConstraint(Sketcher.Constraint("Equal", 39, 40))
sketch10.addConstraint(Sketcher.Constraint("Equal", 40, 41))
sketch10.addConstraint(Sketcher.Constraint("Equal", 41, 42))
sketch10.addConstraint(Sketcher.Constraint("Symmetric", 4, 3, 12, 3, -1))
sketch10.addConstraint(Sketcher.Constraint("PointOnObject", 8, 3, -1))
sketch10.addConstraint(Sketcher.Constraint("Horizontal", 36, 3, 37, 3))
sketch10.addConstraint(Sketcher.Constraint("Horizontal", 37, 3, 38, 3))
sketch10.addConstraint(Sketcher.Constraint("Horizontal", 38, 3, 39, 3))
sketch10.addConstraint(Sketcher.Constraint("Diameter", 0, Q("0.2 in")))
sketch10.addConstraint(Sketcher.Constraint("DistanceX", 36, 3, 37, 3, Q("1 in")))
sketch10.addConstraint(Sketcher.Constraint("DistanceX", 37, 3, 38, 3, Q("1 in")))
sketch10.addConstraint(Sketcher.Constraint("DistanceX", 38, 3, 39, 3, Q("1 in")))
sketch10.addConstraint(Sketcher.Constraint("DistanceX", 33, 3, 1, 3, Q("2.7485 in")))
sketch10.addConstraint(Sketcher.Constraint("DistanceY", -1, 1, 4, 3, Q("101.088001 mm")))
sketch10.addConstraint(Sketcher.Constraint("DistanceX", 4, 3, 3, 3, Q("14.927301 mm")))
sketch10.addConstraint(Sketcher.Constraint("DistanceY", 9, 3, 5, 3, Q("101.088001 mm")))
sketch10.addConstraint(Sketcher.Constraint("DistanceY", 10, 3, 6, 3, Q("101.088001 mm")))
sketch10.addConstraint(Sketcher.Constraint("DistanceY", 11, 3, 7, 3, Q("101.088001 mm")))
sketch10.addConstraint(Sketcher.Constraint("DistanceX", 12, 3, 15, 3, Q("43.499998 mm")))
sketch10.addConstraint(Sketcher.Constraint("DistanceY", 10, 3, 24, 3, Q("34.808602 mm")))
sketch10.addConstraint(Sketcher.Constraint("DistanceY", 23, 3, 25, 3, Q("40.318899 mm")))
sketch10.addConstraint(Sketcher.Constraint("DistanceY", 25, 3, 7, 3, Q("25.9605 mm")))
sketch10.addConstraint(Sketcher.Constraint("DistanceY", 29, 3, 31, 3, Q("41.706101 mm")))
sketch10.addConstraint(Sketcher.Constraint("DistanceY", 3, 3, 31, 3, Q("20.175101 mm")))
sketch10.addConstraint(Sketcher.Constraint("DistanceY", 33, 3, 35, 3, Q("61.111199 mm")))
sketch10.addConstraint(Sketcher.Constraint("DistanceX", 0, 3, -1, 1, Q("186.786271 mm")))
sketch10.addConstraint(Sketcher.Constraint("DistanceY", -1, 1, 0, 3, Q("186.786271 mm")))
sketch10.addConstraint(Sketcher.Constraint("DistanceX", 2, 3, -1, 1, Q("215.009239 mm")))
sketch10.addConstraint(Sketcher.Constraint("DistanceX", 6, 3, -1, 1, Q("253.958612 mm")))
sketch10.addConstraint(Sketcher.Constraint("DistanceY", -1, 1, 6, 3, Q("51.264109 mm")))
sketch10.addConstraint(Sketcher.Constraint("DistanceX", 10, 3, -1, 1, Q("254.245089 mm")))
sketch10.addConstraint(Sketcher.Constraint("DistanceY", 11, 3, -1, 1, Q("74.735838 mm")))
sketch10.addConstraint(Sketcher.Constraint("DistanceX", 13, 3, -1, 1, Q("229.93654 mm")))
sketch10.addConstraint(Sketcher.Constraint("DistanceY", 13, 3, -1, 1, Q("122.207329 mm")))
sketch10.addConstraint(Sketcher.Constraint("DistanceY", 15, 3, -1, 1, Q("166.19035 mm")))
sketch10.addConstraint(Sketcher.Constraint("DistanceX", 16, 3, -1, 1, Q("209.365718 mm")))
sketch10.addConstraint(Sketcher.Constraint("DistanceY", 17, 3, -1, 1, Q("159.392012 mm")))
sketch10.addConstraint(Sketcher.Constraint("DistanceY", 19, 3, -1, 1, Q("139.124149 mm")))
sketch10.addConstraint(Sketcher.Constraint("DistanceX", 20, 3, -1, 1, Q("282.783958 mm")))
sketch10.addConstraint(Sketcher.Constraint("DistanceY", 21, 3, -1, 1, Q("89.751129 mm")))
sketch10.addConstraint(Sketcher.Constraint("DistanceX", 23, 3, -1, 1, Q("297.649841 mm")))
sketch10.addConstraint(Sketcher.Constraint("DistanceX", 25, 3, -1, 1, Q("305.669768 mm")))
sketch10.addConstraint(Sketcher.Constraint("DistanceY", -1, 1, 26, 3, Q("25.768068 mm")))
sketch10.addConstraint(Sketcher.Constraint("DistanceX", 27, 3, -1, 1, Q("303.480678 mm")))
sketch10.addConstraint(Sketcher.Constraint("DistanceY", -1, 1, 28, 3, Q("76.52088 mm")))
sketch10.addConstraint(Sketcher.Constraint("DistanceY", -1, 1, 30, 3, Q("120.225069 mm")))
sketch10.addConstraint(Sketcher.Constraint("DistanceX", 35, 3, -1, 1, Q("238.307211 mm")))
sketch10.addConstraint(Sketcher.Constraint("DistanceY", -1, 1, 41, 3, Q("215.009239 mm")))
sketch10.addConstraint(Sketcher.Constraint("DistanceY", 1, 3, 0, 3, Q("21.119328 mm")))
sketch10.addConstraint(Sketcher.Constraint("DistanceY", 2, 3, 1, 3, Q("21.119328 mm")))
sketch10.addConstraint(Sketcher.Constraint("DistanceY", 3, 3, 2, 3, Q("21.119328 mm")))
sketch10.addConstraint(Sketcher.Constraint("DistanceX", 3, 3, 0, 3, Q("42.334452 mm")))
sketch10.addConstraint(Sketcher.Constraint("DistanceX", 4, 3, 1, 3, Q("43.150269 mm")))
sketch10.addConstraint(Sketcher.Constraint("DistanceY", 5, 3, 3, 3, Q("47.252231 mm")))
sketch10.addConstraint(Sketcher.Constraint("DistanceX", 5, 3, 2, 3, Q("33.994079 mm")))
sketch10.addConstraint(Sketcher.Constraint("DistanceX", 7, 3, 5, 3, Q("9.910588 mm")))
sketch10.addConstraint(Sketcher.Constraint("DistanceX", 8, 3, 7, 3, Q("5.241771 mm")))
sketch10.addConstraint(Sketcher.Constraint("DistanceX", 9, 3, 6, 3, Q("5.241771 mm")))
sketch10.addConstraint(Sketcher.Constraint("DistanceX", 9, 3, 11, 3, Q("9.910588 mm")))
sketch10.addConstraint(Sketcher.Constraint("DistanceY", 14, 3, 13, 3, Q("21.119328 mm")))
sketch10.addConstraint(Sketcher.Constraint("DistanceX", 11, 3, 14, 3, Q("33.464739 mm")))
sketch10.addConstraint(Sketcher.Constraint("DistanceX", 17, 3, 14, 3, Q("34.12606 mm")))
sketch10.addConstraint(Sketcher.Constraint("DistanceY", 16, 3, 17, 3, Q("23.295081 mm")))
sketch10.addConstraint(Sketcher.Constraint("DistanceX", 17, 3, 18, 3, Q("15.30927 mm")))
sketch10.addConstraint(Sketcher.Constraint("DistanceY", 16, 3, 18, 3, Q("3.027219 mm")))
sketch10.addConstraint(Sketcher.Constraint("DistanceX", 19, 3, 17, 3, Q("15.30927 mm")))
sketch10.addConstraint(Sketcher.Constraint("DistanceX", 21, 3, 12, 3, Q("43.691229 mm")))
sketch10.addConstraint(Sketcher.Constraint("DistanceY", 22, 3, 10, 3, Q("15.01529 mm")))
sketch10.addConstraint(Sketcher.Constraint("DistanceX", 22, 3, 11, 3, Q("43.404752 mm")))
sketch10.addConstraint(Sketcher.Constraint("DistanceX", 24, 3, 9, 3, Q("43.404752 mm")))
sketch10.addConstraint(Sketcher.Constraint("DistanceX", 26, 3, 24, 3, Q("1.970088 mm")))
sketch10.addConstraint(Sketcher.Constraint("DistanceY", 25, 3, 27, 3, Q("50.752812 mm")))
sketch10.addConstraint(Sketcher.Constraint("DistanceX", 26, 3, 28, 3, Q("2.18909 mm")))
sketch10.addConstraint(Sketcher.Constraint("DistanceX", 27, 3, 29, 3, Q("2.18909 mm")))
sketch10.addConstraint(Sketcher.Constraint("DistanceX", 29, 3, 30, 3, Q("0.790521 mm")))
sketch10.addConstraint(Sketcher.Constraint("DistanceX", 30, 3, 31, 3, Q("9.93047 mm")))
sketch10.addConstraint(Sketcher.Constraint("DistanceX", 31, 3, 32, 3, Q("9.93047 mm")))
sketch10.addConstraint(Sketcher.Constraint("DistanceY", 31, 3, 32, 3, Q("23.378318 mm")))
sketch10.addConstraint(Sketcher.Constraint("DistanceY", 32, 3, 33, 3, Q("23.378318 mm")))
sketch10.addConstraint(Sketcher.Constraint("DistanceX", 33, 3, 34, 3, Q("11.289672 mm")))
sketch10.addConstraint(Sketcher.Constraint("DistanceY", 33, 3, 34, 3, Q("26.578151 mm")))
sketch10.addConstraint(Sketcher.Constraint("DistanceX", 0, 3, 40, 3, Q("21.119328 mm")))
sketch10.addConstraint(Sketcher.Constraint("DistanceY", 40, 3, 38, 3, Q("54.218752 mm")))
sketch10.addConstraint(Sketcher.Constraint("DistanceX", 40, 3, 41, 3, Q("21.119328 mm")))
sketch10.addConstraint(Sketcher.Constraint("DistanceX", 41, 3, 42, 3, Q("21.119328 mm")))
sketch10.addConstraint(Sketcher.Constraint("DistanceX", 39, 3, 42, 3, Q("6.777692 mm")))
sketch10.addConstraint(Sketcher.Constraint("DistanceY", 20, 3, -1, 1, Q("114.663075 mm")))
sketch10.addConstraint(Sketcher.Constraint("DistanceY", -1, 1, 36, 3, Q("255.116506 mm")))
sketch10.addConstraint(Sketcher.Constraint("DistanceY", -1, 1, 42, 3, Q("229.120722 mm")))
pocket9 = body.newObject("PartDesign::Pocket", "Pocket008")
pocket9.Profile = sketch10
pocket9.Length = Q("0.1 in")
pocket9.Reversed = True

doc.recompute()
